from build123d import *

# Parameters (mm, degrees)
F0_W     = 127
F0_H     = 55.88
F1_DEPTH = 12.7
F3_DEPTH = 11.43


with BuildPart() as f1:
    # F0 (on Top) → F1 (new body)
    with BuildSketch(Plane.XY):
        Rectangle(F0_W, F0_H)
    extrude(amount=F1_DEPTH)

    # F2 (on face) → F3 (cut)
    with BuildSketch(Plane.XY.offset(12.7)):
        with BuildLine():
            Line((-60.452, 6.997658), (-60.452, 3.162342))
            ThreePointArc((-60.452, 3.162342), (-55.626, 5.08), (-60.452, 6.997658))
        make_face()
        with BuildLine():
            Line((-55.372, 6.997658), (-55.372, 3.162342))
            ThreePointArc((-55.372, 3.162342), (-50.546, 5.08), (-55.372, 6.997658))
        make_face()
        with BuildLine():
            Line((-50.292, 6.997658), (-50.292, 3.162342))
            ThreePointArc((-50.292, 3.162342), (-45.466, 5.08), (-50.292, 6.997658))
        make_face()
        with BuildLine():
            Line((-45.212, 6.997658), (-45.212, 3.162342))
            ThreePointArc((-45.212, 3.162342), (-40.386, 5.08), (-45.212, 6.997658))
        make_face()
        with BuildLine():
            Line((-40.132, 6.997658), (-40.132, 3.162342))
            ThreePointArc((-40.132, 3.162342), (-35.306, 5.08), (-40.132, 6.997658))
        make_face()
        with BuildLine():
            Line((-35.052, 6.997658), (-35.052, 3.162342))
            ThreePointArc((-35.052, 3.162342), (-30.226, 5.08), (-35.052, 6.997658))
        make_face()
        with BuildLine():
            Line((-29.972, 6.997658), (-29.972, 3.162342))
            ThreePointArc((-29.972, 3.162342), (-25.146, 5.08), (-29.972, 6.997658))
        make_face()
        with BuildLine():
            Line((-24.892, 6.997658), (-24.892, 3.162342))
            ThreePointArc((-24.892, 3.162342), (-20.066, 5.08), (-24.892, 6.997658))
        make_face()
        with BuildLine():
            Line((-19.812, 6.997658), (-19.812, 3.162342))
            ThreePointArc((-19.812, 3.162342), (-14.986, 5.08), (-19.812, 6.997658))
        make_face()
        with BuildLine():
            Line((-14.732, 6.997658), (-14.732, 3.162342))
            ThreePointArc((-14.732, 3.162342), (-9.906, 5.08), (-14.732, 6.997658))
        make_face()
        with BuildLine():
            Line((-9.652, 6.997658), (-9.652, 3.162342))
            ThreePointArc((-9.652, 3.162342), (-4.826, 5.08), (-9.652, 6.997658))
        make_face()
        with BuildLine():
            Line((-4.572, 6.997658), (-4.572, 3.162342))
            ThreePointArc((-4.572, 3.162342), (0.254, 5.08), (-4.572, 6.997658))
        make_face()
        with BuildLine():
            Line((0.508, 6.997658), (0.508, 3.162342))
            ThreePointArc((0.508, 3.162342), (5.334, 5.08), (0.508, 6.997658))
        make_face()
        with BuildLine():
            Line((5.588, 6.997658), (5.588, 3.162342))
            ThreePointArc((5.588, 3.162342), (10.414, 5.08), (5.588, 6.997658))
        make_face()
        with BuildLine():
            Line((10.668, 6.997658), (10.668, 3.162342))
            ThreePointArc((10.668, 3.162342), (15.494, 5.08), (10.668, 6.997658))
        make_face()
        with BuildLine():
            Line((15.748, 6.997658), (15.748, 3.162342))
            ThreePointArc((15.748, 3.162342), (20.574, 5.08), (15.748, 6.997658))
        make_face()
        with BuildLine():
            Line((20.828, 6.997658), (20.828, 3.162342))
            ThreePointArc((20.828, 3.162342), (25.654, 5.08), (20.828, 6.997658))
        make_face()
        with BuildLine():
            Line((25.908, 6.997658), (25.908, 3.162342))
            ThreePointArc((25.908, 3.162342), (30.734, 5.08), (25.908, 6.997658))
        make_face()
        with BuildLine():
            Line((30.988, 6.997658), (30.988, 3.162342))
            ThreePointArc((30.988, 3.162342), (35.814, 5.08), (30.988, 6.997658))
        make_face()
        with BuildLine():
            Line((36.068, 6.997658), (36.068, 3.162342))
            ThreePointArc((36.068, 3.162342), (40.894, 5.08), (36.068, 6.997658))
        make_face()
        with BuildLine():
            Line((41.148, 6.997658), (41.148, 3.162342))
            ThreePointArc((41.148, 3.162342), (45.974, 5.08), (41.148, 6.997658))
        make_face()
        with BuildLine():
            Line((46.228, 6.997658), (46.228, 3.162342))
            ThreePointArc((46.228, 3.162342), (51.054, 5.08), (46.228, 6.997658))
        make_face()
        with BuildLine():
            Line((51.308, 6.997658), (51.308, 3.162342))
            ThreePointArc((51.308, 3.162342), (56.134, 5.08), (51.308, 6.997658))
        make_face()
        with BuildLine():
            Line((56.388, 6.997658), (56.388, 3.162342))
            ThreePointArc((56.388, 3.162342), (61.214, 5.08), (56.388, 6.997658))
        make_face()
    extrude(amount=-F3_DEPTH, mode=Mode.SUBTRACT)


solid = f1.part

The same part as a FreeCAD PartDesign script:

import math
import FreeCAD as App
import Part
import Sketcher
Q = App.Units.Quantity

doc = App.newDocument("Part")
params = doc.addObject("Spreadsheet::Sheet", "Params")
for row, (alias, value) in enumerate([
    ("sketch1_width", "5 in"),
    ("sketch1_height", "2.2 in"),
    ("pad1_length", "0.5 in"),
    ("sketch2_radius", "0.11 in"),
    ("pocket1_length", "0.45 in"),
], start=1):
    params.set(f"A{row}", alias)
    params.set(f"B{row}", "=" + value)
    params.setAlias(f"B{row}", alias)

body = doc.addObject("PartDesign::Body", "Body")

sketch1 = doc.addObject("Sketcher::SketchObject", "Sketch")
body.addObject(sketch1)
sketch1.AttachmentSupport = (doc.XY_Plane, [""])
sketch1.MapMode = "FlatFace"
sketch1.addGeometry(Part.LineSegment(App.Vector(-64, 28, 0), App.Vector(-64, -28, 0)), False)
sketch1.addGeometry(Part.LineSegment(App.Vector(-64, -28, 0), App.Vector(64, -28, 0)), False)
sketch1.addGeometry(Part.LineSegment(App.Vector(64, -28, 0), App.Vector(64, 28, 0)), False)
sketch1.addGeometry(Part.LineSegment(App.Vector(64, 28, 0), App.Vector(-64, 28, 0)), False)
sketch1.addConstraint(Sketcher.Constraint("Coincident", 0, 2, 1, 1))
sketch1.addConstraint(Sketcher.Constraint("Coincident", 1, 2, 2, 1))
sketch1.addConstraint(Sketcher.Constraint("Coincident", 2, 2, 3, 1))
sketch1.addConstraint(Sketcher.Constraint("Coincident", 3, 2, 0, 1))
sketch1.addConstraint(Sketcher.Constraint("Vertical", 0))
sketch1.addConstraint(Sketcher.Constraint("Horizontal", 1))
sketch1.addConstraint(Sketcher.Constraint("Vertical", 2))
sketch1.addConstraint(Sketcher.Constraint("Horizontal", 3))
sketch1.addConstraint(Sketcher.Constraint("Symmetric", 0, 2, 2, 2, -1, 1))
sketch1.addConstraint(Sketcher.Constraint("DistanceX", 1, 1, 1, 2, Q("5 in")))
sketch1.addConstraint(Sketcher.Constraint("DistanceY", 0, 2, 0, 1, Q("2.2 in")))
sketch1.setExpression("Constraints[9]", "Params.sketch1_width")
sketch1.setExpression("Constraints[10]", "Params.sketch1_height")
pad1 = doc.addObject("PartDesign::Pad", "Pad")
body.addObject(pad1)
pad1.Profile = sketch1
pad1.setExpression("Length", "Params.pad1_length")

sketch2 = doc.addObject("Sketcher::SketchObject", "Sketch001")
body.addObject(sketch2)
sketch2.AttachmentSupport = (doc.XY_Plane, [""])
sketch2.MapMode = "FlatFace"
sketch2.AttachmentOffset = App.Placement(App.Vector(0, 0, 0.5 * 25.4), App.Rotation())
sketch2.addGeometry(Part.LineSegment(App.Vector(-60.5, 7, 0), App.Vector(-60.5, 3.2, 0)), False)
sketch2.addGeometry(Part.ArcOfCircle(Part.Circle(App.Vector(-58.4, 5.1, 0), App.Vector(0, 0, 1), 2.8), math.radians(-137), math.radians(137)), False)
sketch2.addGeometry(Part.LineSegment(App.Vector(-55.4, 7, 0), App.Vector(-55.4, 3.2, 0)), False)
sketch2.addGeometry(Part.ArcOfCircle(Part.Circle(App.Vector(-53.3, 5.1, 0), App.Vector(0, 0, 1), 2.8), math.radians(-137), math.radians(137)), False)
sketch2.addGeometry(Part.LineSegment(App.Vector(-50.3, 7, 0), App.Vector(-50.3, 3.2, 0)), False)
sketch2.addGeometry(Part.ArcOfCircle(Part.Circle(App.Vector(-48.3, 5.1, 0), App.Vector(0, 0, 1), 2.8), math.radians(-137), math.radians(137)), False)
sketch2.addGeometry(Part.LineSegment(App.Vector(-45.2, 7, 0), App.Vector(-45.2, 3.2, 0)), False)
sketch2.addGeometry(Part.ArcOfCircle(Part.Circle(App.Vector(-43.2, 5.1, 0), App.Vector(0, 0, 1), 2.8), math.radians(-137), math.radians(137)), False)
sketch2.addGeometry(Part.LineSegment(App.Vector(-40.1, 7, 0), App.Vector(-40.1, 3.2, 0)), False)
sketch2.addGeometry(Part.ArcOfCircle(Part.Circle(App.Vector(-38.1, 5.1, 0), App.Vector(0, 0, 1), 2.8), math.radians(-137), math.radians(137)), False)
sketch2.addGeometry(Part.LineSegment(App.Vector(-35.1, 7, 0), App.Vector(-35.1, 3.2, 0)), False)
sketch2.addGeometry(Part.ArcOfCircle(Part.Circle(App.Vector(-33, 5.1, 0), App.Vector(0, 0, 1), 2.8), math.radians(-137), math.radians(137)), False)
sketch2.addGeometry(Part.LineSegment(App.Vector(-30, 7, 0), App.Vector(-30, 3.2, 0)), False)
sketch2.addGeometry(Part.ArcOfCircle(Part.Circle(App.Vector(-27.9, 5.1, 0), App.Vector(0, 0, 1), 2.8), math.radians(-137), math.radians(137)), False)
sketch2.addGeometry(Part.LineSegment(App.Vector(-24.9, 7, 0), App.Vector(-24.9, 3.2, 0)), False)
sketch2.addGeometry(Part.ArcOfCircle(Part.Circle(App.Vector(-22.9, 5.1, 0), App.Vector(0, 0, 1), 2.8), math.radians(-137), math.radians(137)), False)
sketch2.addGeometry(Part.LineSegment(App.Vector(-19.8, 7, 0), App.Vector(-19.8, 3.2, 0)), False)
sketch2.addGeometry(Part.ArcOfCircle(Part.Circle(App.Vector(-17.8, 5.1, 0), App.Vector(0, 0, 1), 2.8), math.radians(-137), math.radians(137)), False)
sketch2.addGeometry(Part.LineSegment(App.Vector(-14.7, 7, 0), App.Vector(-14.7, 3.2, 0)), False)
sketch2.addGeometry(Part.ArcOfCircle(Part.Circle(App.Vector(-12.7, 5.1, 0), App.Vector(0, 0, 1), 2.8), math.radians(-137), math.radians(137)), False)
sketch2.addGeometry(Part.LineSegment(App.Vector(-9.7, 7, 0), App.Vector(-9.7, 3.2, 0)), False)
sketch2.addGeometry(Part.ArcOfCircle(Part.Circle(App.Vector(-7.6, 5.1, 0), App.Vector(0, 0, 1), 2.8), math.radians(-137), math.radians(137)), False)
sketch2.addGeometry(Part.LineSegment(App.Vector(-4.6, 7, 0), App.Vector(-4.6, 3.2, 0)), False)
sketch2.addGeometry(Part.ArcOfCircle(Part.Circle(App.Vector(-2.5, 5.1, 0), App.Vector(0, 0, 1), 2.8), math.radians(-137), math.radians(137)), False)
sketch2.addGeometry(Part.LineSegment(App.Vector(0.5, 7, 0), App.Vector(0.5, 3.2, 0)), False)
sketch2.addGeometry(Part.ArcOfCircle(Part.Circle(App.Vector(2.5, 5.1, 0), App.Vector(0, 0, 1), 2.8), math.radians(-137), math.radians(137)), False)
sketch2.addGeometry(Part.LineSegment(App.Vector(5.6, 7, 0), App.Vector(5.6, 3.2, 0)), False)
sketch2.addGeometry(Part.ArcOfCircle(Part.Circle(App.Vector(7.6, 5.1, 0), App.Vector(0, 0, 1), 2.8), math.radians(-137), math.radians(137)), False)
sketch2.addGeometry(Part.LineSegment(App.Vector(10.7, 7, 0), App.Vector(10.7, 3.2, 0)), False)
sketch2.addGeometry(Part.ArcOfCircle(Part.Circle(App.Vector(12.7, 5.1, 0), App.Vector(0, 0, 1), 2.8), math.radians(-137), math.radians(137)), False)
sketch2.addGeometry(Part.LineSegment(App.Vector(15.7, 7, 0), App.Vector(15.7, 3.2, 0)), False)
sketch2.addGeometry(Part.ArcOfCircle(Part.Circle(App.Vector(17.8, 5.1, 0), App.Vector(0, 0, 1), 2.8), math.radians(-137), math.radians(137)), False)
sketch2.addGeometry(Part.LineSegment(App.Vector(20.8, 7, 0), App.Vector(20.8, 3.2, 0)), False)
sketch2.addGeometry(Part.ArcOfCircle(Part.Circle(App.Vector(22.9, 5.1, 0), App.Vector(0, 0, 1), 2.8), math.radians(-137), math.radians(137)), False)
sketch2.addGeometry(Part.LineSegment(App.Vector(25.9, 7, 0), App.Vector(25.9, 3.2, 0)), False)
sketch2.addGeometry(Part.ArcOfCircle(Part.Circle(App.Vector(27.9, 5.1, 0), App.Vector(0, 0, 1), 2.8), math.radians(-137), math.radians(137)), False)
sketch2.addGeometry(Part.LineSegment(App.Vector(31, 7, 0), App.Vector(31, 3.2, 0)), False)
sketch2.addGeometry(Part.ArcOfCircle(Part.Circle(App.Vector(33, 5.1, 0), App.Vector(0, 0, 1), 2.8), math.radians(-137), math.radians(137)), False)
sketch2.addGeometry(Part.LineSegment(App.Vector(36.1, 7, 0), App.Vector(36.1, 3.2, 0)), False)
sketch2.addGeometry(Part.ArcOfCircle(Part.Circle(App.Vector(38.1, 5.1, 0), App.Vector(0, 0, 1), 2.8), math.radians(-137), math.radians(137)), False)
sketch2.addGeometry(Part.LineSegment(App.Vector(41.1, 7, 0), App.Vector(41.1, 3.2, 0)), False)
sketch2.addGeometry(Part.ArcOfCircle(Part.Circle(App.Vector(43.2, 5.1, 0), App.Vector(0, 0, 1), 2.8), math.radians(-137), math.radians(137)), False)
sketch2.addGeometry(Part.LineSegment(App.Vector(46.2, 7, 0), App.Vector(46.2, 3.2, 0)), False)
sketch2.addGeometry(Part.ArcOfCircle(Part.Circle(App.Vector(48.3, 5.1, 0), App.Vector(0, 0, 1), 2.8), math.radians(-137), math.radians(137)), False)
sketch2.addGeometry(Part.LineSegment(App.Vector(51.3, 7, 0), App.Vector(51.3, 3.2, 0)), False)
sketch2.addGeometry(Part.ArcOfCircle(Part.Circle(App.Vector(53.3, 5.1, 0), App.Vector(0, 0, 1), 2.8), math.radians(-137), math.radians(137)), False)
sketch2.addGeometry(Part.LineSegment(App.Vector(56.4, 7, 0), App.Vector(56.4, 3.2, 0)), False)
sketch2.addGeometry(Part.ArcOfCircle(Part.Circle(App.Vector(58.4, 5.1, 0), App.Vector(0, 0, 1), 2.8), math.radians(-137), math.radians(137)), False)
sketch2.addConstraint(Sketcher.Constraint("Coincident", 0, 1, 1, 2))
sketch2.addConstraint(Sketcher.Constraint("Coincident", 1, 1, 0, 2))
sketch2.addConstraint(Sketcher.Constraint("Coincident", 2, 1, 3, 2))
sketch2.addConstraint(Sketcher.Constraint("Coincident", 3, 1, 2, 2))
sketch2.addConstraint(Sketcher.Constraint("Coincident", 4, 1, 5, 2))
sketch2.addConstraint(Sketcher.Constraint("Coincident", 5, 1, 4, 2))
sketch2.addConstraint(Sketcher.Constraint("Coincident", 6, 1, 7, 2))
sketch2.addConstraint(Sketcher.Constraint("Coincident", 7, 1, 6, 2))
sketch2.addConstraint(Sketcher.Constraint("Coincident", 8, 1, 9, 2))
sketch2.addConstraint(Sketcher.Constraint("Coincident", 9, 1, 8, 2))
sketch2.addConstraint(Sketcher.Constraint("Coincident", 10, 1, 11, 2))
sketch2.addConstraint(Sketcher.Constraint("Coincident", 11, 1, 10, 2))
sketch2.addConstraint(Sketcher.Constraint("Coincident", 12, 1, 13, 2))
sketch2.addConstraint(Sketcher.Constraint("Coincident", 13, 1, 12, 2))
sketch2.addConstraint(Sketcher.Constraint("Coincident", 14, 1, 15, 2))
sketch2.addConstraint(Sketcher.Constraint("Coincident", 15, 1, 14, 2))
sketch2.addConstraint(Sketcher.Constraint("Coincident", 16, 1, 17, 2))
sketch2.addConstraint(Sketcher.Constraint("Coincident", 17, 1, 16, 2))
sketch2.addConstraint(Sketcher.Constraint("Coincident", 18, 1, 19, 2))
sketch2.addConstraint(Sketcher.Constraint("Coincident", 19, 1, 18, 2))
sketch2.addConstraint(Sketcher.Constraint("Coincident", 20, 1, 21, 2))
sketch2.addConstraint(Sketcher.Constraint("Coincident", 21, 1, 20, 2))
sketch2.addConstraint(Sketcher.Constraint("Coincident", 22, 1, 23, 2))
sketch2.addConstraint(Sketcher.Constraint("Coincident", 23, 1, 22, 2))
sketch2.addConstraint(Sketcher.Constraint("Coincident", 24, 1, 25, 2))
sketch2.addConstraint(Sketcher.Constraint("Coincident", 25, 1, 24, 2))
sketch2.addConstraint(Sketcher.Constraint("Coincident", 26, 1, 27, 2))
sketch2.addConstraint(Sketcher.Constraint("Coincident", 27, 1, 26, 2))
sketch2.addConstraint(Sketcher.Constraint("Coincident", 28, 1, 29, 2))
sketch2.addConstraint(Sketcher.Constraint("Coincident", 29, 1, 28, 2))
sketch2.addConstraint(Sketcher.Constraint("Coincident", 30, 1, 31, 2))
sketch2.addConstraint(Sketcher.Constraint("Coincident", 31, 1, 30, 2))
sketch2.addConstraint(Sketcher.Constraint("Coincident", 32, 1, 33, 2))
sketch2.addConstraint(Sketcher.Constraint("Coincident", 33, 1, 32, 2))
sketch2.addConstraint(Sketcher.Constraint("Coincident", 34, 1, 35, 2))
sketch2.addConstraint(Sketcher.Constraint("Coincident", 35, 1, 34, 2))
sketch2.addConstraint(Sketcher.Constraint("Coincident", 36, 1, 37, 2))
sketch2.addConstraint(Sketcher.Constraint("Coincident", 37, 1, 36, 2))
sketch2.addConstraint(Sketcher.Constraint("Coincident", 38, 1, 39, 2))
sketch2.addConstraint(Sketcher.Constraint("Coincident", 39, 1, 38, 2))
sketch2.addConstraint(Sketcher.Constraint("Coincident", 40, 1, 41, 2))
sketch2.addConstraint(Sketcher.Constraint("Coincident", 41, 1, 40, 2))
sketch2.addConstraint(Sketcher.Constraint("Coincident", 42, 1, 43, 2))
sketch2.addConstraint(Sketcher.Constraint("Coincident", 43, 1, 42, 2))
sketch2.addConstraint(Sketcher.Constraint("Coincident", 44, 1, 45, 2))
sketch2.addConstraint(Sketcher.Constraint("Coincident", 45, 1, 44, 2))
sketch2.addConstraint(Sketcher.Constraint("Coincident", 46, 1, 47, 2))
sketch2.addConstraint(Sketcher.Constraint("Coincident", 47, 1, 46, 2))
sketch2.addConstraint(Sketcher.Constraint("Vertical", 0))
sketch2.addConstraint(Sketcher.Constraint("Vertical", 2))
sketch2.addConstraint(Sketcher.Constraint("Vertical", 4))
sketch2.addConstraint(Sketcher.Constraint("Vertical", 6))
sketch2.addConstraint(Sketcher.Constraint("Vertical", 8))
sketch2.addConstraint(Sketcher.Constraint("Vertical", 10))
sketch2.addConstraint(Sketcher.Constraint("Vertical", 12))
sketch2.addConstraint(Sketcher.Constraint("Vertical", 14))
sketch2.addConstraint(Sketcher.Constraint("Vertical", 16))
sketch2.addConstraint(Sketcher.Constraint("Vertical", 18))
sketch2.addConstraint(Sketcher.Constraint("Vertical", 20))
sketch2.addConstraint(Sketcher.Constraint("Vertical", 22))
sketch2.addConstraint(Sketcher.Constraint("Vertical", 24))
sketch2.addConstraint(Sketcher.Constraint("Vertical", 26))
sketch2.addConstraint(Sketcher.Constraint("Vertical", 28))
sketch2.addConstraint(Sketcher.Constraint("Vertical", 30))
sketch2.addConstraint(Sketcher.Constraint("Vertical", 32))
sketch2.addConstraint(Sketcher.Constraint("Vertical", 34))
sketch2.addConstraint(Sketcher.Constraint("Vertical", 36))
sketch2.addConstraint(Sketcher.Constraint("Vertical", 38))
sketch2.addConstraint(Sketcher.Constraint("Vertical", 40))
sketch2.addConstraint(Sketcher.Constraint("Vertical", 42))
sketch2.addConstraint(Sketcher.Constraint("Vertical", 44))
sketch2.addConstraint(Sketcher.Constraint("Vertical", 46))
sketch2.addConstraint(Sketcher.Constraint("Equal", 1, 3))
sketch2.addConstraint(Sketcher.Constraint("Equal", 3, 5))
sketch2.addConstraint(Sketcher.Constraint("Equal", 5, 7))
sketch2.addConstraint(Sketcher.Constraint("Equal", 7, 9))
sketch2.addConstraint(Sketcher.Constraint("Equal", 9, 11))
sketch2.addConstraint(Sketcher.Constraint("Equal", 11, 13))
sketch2.addConstraint(Sketcher.Constraint("Equal", 13, 15))
sketch2.addConstraint(Sketcher.Constraint("Equal", 15, 17))
sketch2.addConstraint(Sketcher.Constraint("Equal", 17, 19))
sketch2.addConstraint(Sketcher.Constraint("Equal", 19, 21))
sketch2.addConstraint(Sketcher.Constraint("Equal", 21, 23))
sketch2.addConstraint(Sketcher.Constraint("Equal", 23, 25))
sketch2.addConstraint(Sketcher.Constraint("Equal", 25, 27))
sketch2.addConstraint(Sketcher.Constraint("Equal", 27, 29))
sketch2.addConstraint(Sketcher.Constraint("Equal", 29, 31))
sketch2.addConstraint(Sketcher.Constraint("Equal", 31, 33))
sketch2.addConstraint(Sketcher.Constraint("Equal", 33, 35))
sketch2.addConstraint(Sketcher.Constraint("Equal", 35, 37))
sketch2.addConstraint(Sketcher.Constraint("Equal", 37, 39))
sketch2.addConstraint(Sketcher.Constraint("Equal", 39, 41))
sketch2.addConstraint(Sketcher.Constraint("Equal", 41, 43))
sketch2.addConstraint(Sketcher.Constraint("Equal", 43, 45))
sketch2.addConstraint(Sketcher.Constraint("Equal", 45, 47))
sketch2.addConstraint(Sketcher.Constraint("Symmetric", 23, 3, 25, 3, -2))
sketch2.addConstraint(Sketcher.Constraint("Symmetric", 21, 3, 27, 3, -2))
sketch2.addConstraint(Sketcher.Constraint("Symmetric", 19, 3, 29, 3, -2))
sketch2.addConstraint(Sketcher.Constraint("Symmetric", 17, 3, 31, 3, -2))
sketch2.addConstraint(Sketcher.Constraint("Symmetric", 15, 3, 33, 3, -2))
sketch2.addConstraint(Sketcher.Constraint("Symmetric", 13, 3, 35, 3, -2))
sketch2.addConstraint(Sketcher.Constraint("Symmetric", 11, 3, 37, 3, -2))
sketch2.addConstraint(Sketcher.Constraint("Symmetric", 9, 3, 39, 3, -2))
sketch2.addConstraint(Sketcher.Constraint("Symmetric", 7, 3, 41, 3, -2))
sketch2.addConstraint(Sketcher.Constraint("Symmetric", 5, 3, 43, 3, -2))
sketch2.addConstraint(Sketcher.Constraint("Symmetric", 3, 3, 45, 3, -2))
sketch2.addConstraint(Sketcher.Constraint("Symmetric", 1, 3, 47, 3, -2))
sketch2.addConstraint(Sketcher.Constraint("Horizontal", 1, 3, 3, 3))
sketch2.addConstraint(Sketcher.Constraint("Horizontal", 3, 3, 5, 3))
sketch2.addConstraint(Sketcher.Constraint("Horizontal", 5, 3, 7, 3))
sketch2.addConstraint(Sketcher.Constraint("Horizontal", 7, 3, 9, 3))
sketch2.addConstraint(Sketcher.Constraint("Horizontal", 9, 3, 11, 3))
sketch2.addConstraint(Sketcher.Constraint("Horizontal", 11, 3, 13, 3))
sketch2.addConstraint(Sketcher.Constraint("Horizontal", 13, 3, 15, 3))
sketch2.addConstraint(Sketcher.Constraint("Horizontal", 15, 3, 17, 3))
sketch2.addConstraint(Sketcher.Constraint("Horizontal", 17, 3, 19, 3))
sketch2.addConstraint(Sketcher.Constraint("Horizontal", 19, 3, 21, 3))
sketch2.addConstraint(Sketcher.Constraint("Horizontal", 21, 3, 23, 3))
sketch2.addConstraint(Sketcher.Constraint("Horizontal", 0, 1, 2, 1))
sketch2.addConstraint(Sketcher.Constraint("Horizontal", 2, 1, 4, 1))
sketch2.addConstraint(Sketcher.Constraint("Horizontal", 4, 1, 6, 1))
sketch2.addConstraint(Sketcher.Constraint("Horizontal", 6, 1, 8, 1))
sketch2.addConstraint(Sketcher.Constraint("Horizontal", 8, 1, 10, 1))
sketch2.addConstraint(Sketcher.Constraint("Horizontal", 10, 1, 12, 1))
sketch2.addConstraint(Sketcher.Constraint("Horizontal", 12, 1, 14, 1))
sketch2.addConstraint(Sketcher.Constraint("Horizontal", 14, 1, 16, 1))
sketch2.addConstraint(Sketcher.Constraint("Horizontal", 16, 1, 18, 1))
sketch2.addConstraint(Sketcher.Constraint("Horizontal", 18, 1, 20, 1))
sketch2.addConstraint(Sketcher.Constraint("Horizontal", 20, 1, 22, 1))
sketch2.addConstraint(Sketcher.Constraint("Horizontal", 22, 1, 24, 1))
sketch2.addConstraint(Sketcher.Constraint("Horizontal", 24, 1, 26, 1))
sketch2.addConstraint(Sketcher.Constraint("Horizontal", 26, 1, 28, 1))
sketch2.addConstraint(Sketcher.Constraint("Horizontal", 28, 1, 30, 1))
sketch2.addConstraint(Sketcher.Constraint("Horizontal", 30, 1, 32, 1))
sketch2.addConstraint(Sketcher.Constraint("Horizontal", 32, 1, 34, 1))
sketch2.addConstraint(Sketcher.Constraint("Horizontal", 34, 1, 36, 1))
sketch2.addConstraint(Sketcher.Constraint("Horizontal", 36, 1, 38, 1))
sketch2.addConstraint(Sketcher.Constraint("Horizontal", 38, 1, 40, 1))
sketch2.addConstraint(Sketcher.Constraint("Horizontal", 40, 1, 42, 1))
sketch2.addConstraint(Sketcher.Constraint("Horizontal", 42, 1, 44, 1))
sketch2.addConstraint(Sketcher.Constraint("Horizontal", 44, 1, 46, 1))
sketch2.addConstraint(Sketcher.Constraint("Radius", 1, Q("0.11 in")))
sketch2.addConstraint(Sketcher.Constraint("DistanceX", 1, 3, -1, 1, Q("2.3 in")))
sketch2.addConstraint(Sketcher.Constraint("DistanceY", -1, 1, 1, 3, Q("0.2 in")))
sketch2.addConstraint(Sketcher.Constraint("DistanceX", 3, 3, -1, 1, Q("2.1 in")))
sketch2.addConstraint(Sketcher.Constraint("DistanceX", 5, 3, -1, 1, Q("1.9 in")))
sketch2.addConstraint(Sketcher.Constraint("DistanceX", 7, 3, -1, 1, Q("1.7 in")))
sketch2.addConstraint(Sketcher.Constraint("DistanceX", 9, 3, -1, 1, Q("1.5 in")))
sketch2.addConstraint(Sketcher.Constraint("DistanceX", 11, 3, -1, 1, Q("1.3 in")))
sketch2.addConstraint(Sketcher.Constraint("DistanceX", 13, 3, -1, 1, Q("1.1 in")))
sketch2.addConstraint(Sketcher.Constraint("DistanceX", 15, 3, -1, 1, Q("0.9 in")))
sketch2.addConstraint(Sketcher.Constraint("DistanceX", 17, 3, -1, 1, Q("0.7 in")))
sketch2.addConstraint(Sketcher.Constraint("DistanceX", 19, 3, -1, 1, Q("0.5 in")))
sketch2.addConstraint(Sketcher.Constraint("DistanceX", 21, 3, -1, 1, Q("0.3 in")))
sketch2.addConstraint(Sketcher.Constraint("DistanceX", 23, 3, -1, 1, Q("0.1 in")))
sketch2.addConstraint(Sketcher.Constraint("DistanceX", 0, 1, -1, 1, Q("2.38 in")))
sketch2.setExpression("Constraints[141]", "Params.sketch2_radius")
pocket1 = doc.addObject("PartDesign::Pocket", "Pocket")
body.addObject(pocket1)
pocket1.Profile = sketch2
pocket1.setExpression("Length", "Params.pocket1_length")

doc.recompute()
